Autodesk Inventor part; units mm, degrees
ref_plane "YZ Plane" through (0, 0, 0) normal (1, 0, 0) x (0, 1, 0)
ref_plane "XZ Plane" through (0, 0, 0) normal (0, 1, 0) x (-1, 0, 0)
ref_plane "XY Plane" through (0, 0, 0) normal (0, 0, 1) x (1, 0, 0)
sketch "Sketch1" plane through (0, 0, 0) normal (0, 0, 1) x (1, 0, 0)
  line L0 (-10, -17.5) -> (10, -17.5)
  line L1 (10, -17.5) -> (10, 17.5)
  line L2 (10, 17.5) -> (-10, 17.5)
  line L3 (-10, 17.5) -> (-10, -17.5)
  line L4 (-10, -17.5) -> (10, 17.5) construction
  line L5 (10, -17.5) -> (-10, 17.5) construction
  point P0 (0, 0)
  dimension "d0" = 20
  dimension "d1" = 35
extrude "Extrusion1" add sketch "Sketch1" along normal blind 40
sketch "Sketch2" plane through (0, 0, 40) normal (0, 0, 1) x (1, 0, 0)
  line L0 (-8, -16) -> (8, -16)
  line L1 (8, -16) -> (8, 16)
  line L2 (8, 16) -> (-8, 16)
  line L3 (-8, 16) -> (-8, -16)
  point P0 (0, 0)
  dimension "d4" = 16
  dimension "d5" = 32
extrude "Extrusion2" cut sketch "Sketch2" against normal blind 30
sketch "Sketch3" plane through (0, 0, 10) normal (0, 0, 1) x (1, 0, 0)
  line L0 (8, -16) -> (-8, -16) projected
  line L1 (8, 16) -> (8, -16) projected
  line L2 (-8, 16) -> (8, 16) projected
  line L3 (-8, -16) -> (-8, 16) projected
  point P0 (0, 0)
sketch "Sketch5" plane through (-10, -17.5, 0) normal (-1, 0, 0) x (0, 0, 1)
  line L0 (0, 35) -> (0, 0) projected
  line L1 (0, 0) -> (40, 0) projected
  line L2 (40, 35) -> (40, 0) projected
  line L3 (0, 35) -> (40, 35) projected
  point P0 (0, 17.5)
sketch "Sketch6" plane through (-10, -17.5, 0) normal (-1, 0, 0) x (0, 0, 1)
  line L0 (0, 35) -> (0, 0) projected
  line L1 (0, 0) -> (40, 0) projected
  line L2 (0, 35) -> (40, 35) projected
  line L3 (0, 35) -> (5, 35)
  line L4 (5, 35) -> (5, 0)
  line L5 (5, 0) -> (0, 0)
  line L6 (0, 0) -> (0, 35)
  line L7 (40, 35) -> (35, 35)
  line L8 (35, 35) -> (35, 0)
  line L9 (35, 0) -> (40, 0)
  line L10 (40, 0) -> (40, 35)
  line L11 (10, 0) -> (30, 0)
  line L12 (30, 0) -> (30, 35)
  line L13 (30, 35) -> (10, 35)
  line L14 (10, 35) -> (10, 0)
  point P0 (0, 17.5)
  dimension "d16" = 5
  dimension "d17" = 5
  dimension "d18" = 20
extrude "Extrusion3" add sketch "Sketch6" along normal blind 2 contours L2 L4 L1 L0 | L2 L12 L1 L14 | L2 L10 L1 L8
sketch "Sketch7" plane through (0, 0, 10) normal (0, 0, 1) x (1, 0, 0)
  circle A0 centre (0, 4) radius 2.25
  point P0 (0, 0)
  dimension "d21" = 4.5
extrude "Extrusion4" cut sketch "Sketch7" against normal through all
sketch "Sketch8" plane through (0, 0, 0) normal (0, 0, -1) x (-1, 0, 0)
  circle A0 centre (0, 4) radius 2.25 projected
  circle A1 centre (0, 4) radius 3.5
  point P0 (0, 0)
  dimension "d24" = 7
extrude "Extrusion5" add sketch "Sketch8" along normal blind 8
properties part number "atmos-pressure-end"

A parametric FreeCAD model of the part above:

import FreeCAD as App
import Part
import Sketcher

V = App.Vector
Q = App.Units.Quantity


def add_polygon(sketch, points):
    """Adds a closed chain of lines whose ends are joined by coincident constraints."""
    first, n = sketch.GeometryCount, len(points)
    for a, b in zip(points, points[1:] + points[:1]):
        sketch.addGeometry(Part.LineSegment(App.Vector(*a, 0), App.Vector(*b, 0)), False)
    for i in range(n):
        sketch.addConstraint(Sketcher.Constraint("Coincident", first + i, 2, first + (i + 1) % n, 1))

doc = App.newDocument("Part")
params = doc.addObject("Spreadsheet::Sheet", "Params")
for row, (alias, value) in enumerate([
    ("sketch1_width", "20 mm"),
    ("sketch1_height", "35 mm"),
    ("pad1_length", "40 mm"),
    ("sketch2_width", "16 mm"),
    ("sketch2_height", "32 mm"),
    ("pocket1_length", "30 mm"),
    ("sketch3_height", "5 mm"),
    ("sketch3_height2", "20 mm"),
    ("sketch3_width", "35 mm"),
    ("pad2_length", "2 mm"),
    ("sketch4_diameter", "4.5 mm"),
    ("sketch5_diameter", "7 mm"),
    ("sketch5_diameter2", "4.5 mm"),
    ("pad3_length", "8 mm"),
], start=1):
    params.set(f"A{row}", alias)
    params.set(f"B{row}", "=" + value)
    params.setAlias(f"B{row}", alias)

body = doc.addObject("PartDesign::Body", "Body")

# Sketch on XY plane
sketch1 = doc.addObject("Sketcher::SketchObject", "Sketch")
body.addObject(sketch1)
sketch1.AttachmentSupport = (doc.XY_Plane, [""])
sketch1.MapMode = "FlatFace"
add_polygon(sketch1, [(-10, 18), (-10, -18), (10, -18), (10, 18)])  # lines 0-3
sketch1.addConstraint(Sketcher.Constraint("Vertical", 0))
sketch1.addConstraint(Sketcher.Constraint("Horizontal", 1))
sketch1.addConstraint(Sketcher.Constraint("Vertical", 2))
sketch1.addConstraint(Sketcher.Constraint("Horizontal", 3))
sketch1.addConstraint(Sketcher.Constraint("Symmetric", 0, 2, 2, 2, -1, 1))
sketch1.addConstraint(Sketcher.Constraint("DistanceX", 1, 1, 1, 2, Q("20 mm")))
sketch1.addConstraint(Sketcher.Constraint("DistanceY", 0, 2, 0, 1, Q("35 mm")))
sketch1.setExpression("Constraints[9]", "Params.sketch1_width")
sketch1.setExpression("Constraints[10]", "Params.sketch1_height")
pad1 = doc.addObject("PartDesign::Pad", "Pad")
body.addObject(pad1)
pad1.Profile = sketch1
pad1.setExpression("Length", "Params.pad1_length")

# Sketch on XY plane
sketch2 = doc.addObject("Sketcher::SketchObject", "Sketch001")
body.addObject(sketch2)
sketch2.AttachmentSupport = (doc.XY_Plane, [""])
sketch2.MapMode = "FlatFace"
sketch2.AttachmentOffset = App.Placement(V(0, 0, 40), App.Rotation())
add_polygon(sketch2, [(-8, 16), (-8, -16), (8, -16), (8, 16)])  # lines 0-3
sketch2.addConstraint(Sketcher.Constraint("Vertical", 0))
sketch2.addConstraint(Sketcher.Constraint("Horizontal", 1))
sketch2.addConstraint(Sketcher.Constraint("Vertical", 2))
sketch2.addConstraint(Sketcher.Constraint("Horizontal", 3))
sketch2.addConstraint(Sketcher.Constraint("Symmetric", 0, 2, 2, 2, -1, 1))
sketch2.addConstraint(Sketcher.Constraint("DistanceX", 1, 1, 1, 2, Q("16 mm")))
sketch2.addConstraint(Sketcher.Constraint("DistanceY", 0, 2, 0, 1, Q("32 mm")))
sketch2.setExpression("Constraints[9]", "Params.sketch2_width")
sketch2.setExpression("Constraints[10]", "Params.sketch2_height")
pocket1 = doc.addObject("PartDesign::Pocket", "Pocket")
body.addObject(pocket1)
pocket1.Profile = sketch2
pocket1.setExpression("Length", "Params.pocket1_length")

# Sketch on YZ plane
sketch3 = doc.addObject("Sketcher::SketchObject", "Sketch002")
body.addObject(sketch3)
sketch3.AttachmentSupport = (doc.YZ_Plane, [""])
sketch3.MapMode = "FlatFace"
sketch3.AttachmentOffset = App.Placement(V(0, 0, -10), App.Rotation())
add_polygon(sketch3, [(18, 5), (18, 0), (-18, 0), (-18, 5)])  # lines 0-3
add_polygon(sketch3, [(18, 30), (18, 10), (-18, 10), (-18, 30)])  # lines 4-7
add_polygon(sketch3, [(18, 40), (18, 35), (-18, 35), (-18, 40)])  # lines 8-11
sketch3.addConstraint(Sketcher.Constraint("Vertical", 0))
sketch3.addConstraint(Sketcher.Constraint("Horizontal", 1))
sketch3.addConstraint(Sketcher.Constraint("Vertical", 2))
sketch3.addConstraint(Sketcher.Constraint("Horizontal", 3))
sketch3.addConstraint(Sketcher.Constraint("Vertical", 4))
sketch3.addConstraint(Sketcher.Constraint("Horizontal", 5))
sketch3.addConstraint(Sketcher.Constraint("Vertical", 6))
sketch3.addConstraint(Sketcher.Constraint("Horizontal", 7))
sketch3.addConstraint(Sketcher.Constraint("Vertical", 8))
sketch3.addConstraint(Sketcher.Constraint("Horizontal", 9))
sketch3.addConstraint(Sketcher.Constraint("Vertical", 10))
sketch3.addConstraint(Sketcher.Constraint("Horizontal", 11))
sketch3.addConstraint(Sketcher.Constraint("Symmetric", 0, 2, 1, 2, -1, 1))
sketch3.addConstraint(Sketcher.Constraint("Vertical", 3, 2, 4, 2))
sketch3.addConstraint(Sketcher.Constraint("Vertical", 2, 2, 5, 2))
sketch3.addConstraint(Sketcher.Constraint("Vertical", 7, 2, 8, 2))
sketch3.addConstraint(Sketcher.Constraint("Vertical", 6, 2, 9, 2))
sketch3.addConstraint(Sketcher.Constraint("Equal", 2, 8))
sketch3.addConstraint(Sketcher.Constraint("DistanceY", 0, 2, 0, 1, Q("5 mm")))
sketch3.addConstraint(Sketcher.Constraint("DistanceY", 4, 2, 4, 1, Q("20 mm")))
sketch3.addConstraint(Sketcher.Constraint("DistanceY", 3, 2, 4, 2, Q("5 mm")))
sketch3.addConstraint(Sketcher.Constraint("DistanceY", 7, 2, 8, 2, Q("5 mm")))
sketch3.addConstraint(Sketcher.Constraint("DistanceX", 1, 2, 1, 1, Q("35 mm")))
sketch3.setExpression("Constraints[30]", "Params.sketch3_height")
sketch3.setExpression("Constraints[31]", "Params.sketch3_height2")
sketch3.setExpression("Constraints[34]", "Params.sketch3_width")
pad2 = doc.addObject("PartDesign::Pad", "Pad001")
body.addObject(pad2)
pad2.Profile = sketch3
pad2.setExpression("Length", "Params.pad2_length")
pad2.Reversed = True

# Sketch on XY plane
sketch4 = doc.addObject("Sketcher::SketchObject", "Sketch003")
body.addObject(sketch4)
sketch4.AttachmentSupport = (doc.XY_Plane, [""])
sketch4.MapMode = "FlatFace"
sketch4.AttachmentOffset = App.Placement(V(0, 0, 10), App.Rotation())
sketch4.addGeometry(Part.Circle(V(0, 4, 0), V(0, 0, 1), 2.2), False)
sketch4.addConstraint(Sketcher.Constraint("PointOnObject", 0, 3, -2))
sketch4.addConstraint(Sketcher.Constraint("Diameter", 0, Q("4.5 mm")))
sketch4.addConstraint(Sketcher.Constraint("DistanceY", -1, 1, 0, 3, Q("4 mm")))
sketch4.setExpression("Constraints[1]", "Params.sketch4_diameter")
pocket2 = doc.addObject("PartDesign::Pocket", "Pocket001")
body.addObject(pocket2)
pocket2.Profile = sketch4
pocket2.Type = "ThroughAll"

# Sketch on XY plane
sketch5 = doc.addObject("Sketcher::SketchObject", "Sketch004")
body.addObject(sketch5)
sketch5.AttachmentSupport = (doc.XY_Plane, [""])
sketch5.MapMode = "FlatFace"
sketch5.addGeometry(Part.Circle(V(0, 4, 0), V(0, 0, 1), 3.5), False)
sketch5.addGeometry(Part.Circle(V(0, 4, 0), V(0, 0, 1), 2.2), False)
sketch5.addConstraint(Sketcher.Constraint("Coincident", 1, 3, 0, 3))
sketch5.addConstraint(Sketcher.Constraint("PointOnObject", 0, 3, -2))
sketch5.addConstraint(Sketcher.Constraint("Diameter", 0, Q("7 mm")))
sketch5.addConstraint(Sketcher.Constraint("Diameter", 1, Q("4.5 mm")))
sketch5.addConstraint(Sketcher.Constraint("DistanceY", -1, 1, 0, 3, Q("4 mm")))
sketch5.setExpression("Constraints[2]", "Params.sketch5_diameter")
sketch5.setExpression("Constraints[3]", "Params.sketch5_diameter2")
pad3 = doc.addObject("PartDesign::Pad", "Pad002")
body.addObject(pad3)
pad3.Profile = sketch5
pad3.setExpression("Length", "Params.pad3_length")
pad3.Reversed = True

doc.recompute()
